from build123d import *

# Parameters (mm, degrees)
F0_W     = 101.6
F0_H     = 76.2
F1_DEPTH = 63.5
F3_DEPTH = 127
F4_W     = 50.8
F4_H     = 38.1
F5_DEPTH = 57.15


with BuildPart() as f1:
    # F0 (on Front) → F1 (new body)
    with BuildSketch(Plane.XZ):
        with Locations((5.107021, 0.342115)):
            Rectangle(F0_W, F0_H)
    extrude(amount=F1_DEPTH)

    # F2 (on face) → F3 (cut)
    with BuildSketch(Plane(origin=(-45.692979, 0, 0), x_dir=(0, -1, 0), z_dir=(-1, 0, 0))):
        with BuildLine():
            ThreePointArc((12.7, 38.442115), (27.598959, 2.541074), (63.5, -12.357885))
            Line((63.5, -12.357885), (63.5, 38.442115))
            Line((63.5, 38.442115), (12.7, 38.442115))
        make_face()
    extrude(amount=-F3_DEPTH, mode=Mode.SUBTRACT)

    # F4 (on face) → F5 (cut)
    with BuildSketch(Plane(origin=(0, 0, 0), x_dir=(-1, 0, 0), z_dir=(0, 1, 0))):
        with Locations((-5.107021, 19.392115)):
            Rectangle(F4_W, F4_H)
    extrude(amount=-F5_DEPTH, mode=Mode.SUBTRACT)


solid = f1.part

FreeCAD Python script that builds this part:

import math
import FreeCAD as App
import Part
import Sketcher

V = App.Vector
Q = App.Units.Quantity


def add_polygon(sketch, points):
    """Adds a closed chain of lines whose ends are joined by coincident constraints."""
    first, n = sketch.GeometryCount, len(points)
    for a, b in zip(points, points[1:] + points[:1]):
        sketch.addGeometry(Part.LineSegment(App.Vector(*a, 0), App.Vector(*b, 0)), False)
    for i in range(n):
        sketch.addConstraint(Sketcher.Constraint("Coincident", first + i, 2, first + (i + 1) % n, 1))

doc = App.newDocument("Part")
body = doc.addObject("PartDesign::Body", "Body")

# Sketch on XZ plane
sketch1 = body.newObject("Sketcher::SketchObject", "Sketch")
sketch1.AttachmentSupport = (doc.getObject("XZ_Plane"), [""])
sketch1.MapMode = "FlatFace"
add_polygon(sketch1, [(-46, 38), (-46, -38), (56, -38), (56, 38)])  # lines 0-3
sketch1.addConstraint([
    Sketcher.Constraint("Vertical", 0),
    Sketcher.Constraint("Horizontal", 1),
    Sketcher.Constraint("Vertical", 2),
    Sketcher.Constraint("Horizontal", 3),
    Sketcher.Constraint("DistanceX", 1, 1, 1, 2, Q("4 in")),
    Sketcher.Constraint("DistanceY", 0, 2, 0, 1, Q("3 in")),
    Sketcher.Constraint("DistanceX", 0, 2, -1, 1, 45.692979),
    Sketcher.Constraint("DistanceY", 0, 2, -1, 1, 37.757885),
])
pad1 = body.newObject("PartDesign::Pad", "Pad")
pad1.Profile = sketch1
pad1.Length = Q("2.5 in")

# Sketch on YZ plane
sketch2 = body.newObject("Sketcher::SketchObject", "Sketch001")
sketch2.AttachmentSupport = (doc.getObject("YZ_Plane"), [""])
sketch2.MapMode = "FlatFace"
sketch2.AttachmentOffset = App.Placement(V(0, 0, -45.692979), App.Rotation())
sketch2.addGeometry([
    Part.ArcOfCircle(Part.Circle(V(-64, 39, 0), V(0, 0, 1), 51), math.radians(-90), math.radians(0)),
    Part.LineSegment(V(-64, -12, 0), V(-64, 38, 0)),
    Part.LineSegment(V(-64, 38, 0), V(-13, 38, 0)),
], False)
sketch2.addConstraint([
    Sketcher.Constraint("Coincident", 0, 1, 1, 1),
    Sketcher.Constraint("Coincident", 1, 2, 2, 1),
    Sketcher.Constraint("Coincident", 2, 2, 0, 2),
    Sketcher.Constraint("Vertical", 1),
    Sketcher.Constraint("Horizontal", 2),
    Sketcher.Constraint("Equal", 2, 1),
    Sketcher.Constraint("DistanceX", 2, 1, 2, 2, Q("2 in")),
    Sketcher.Constraint("DistanceX", 0, 1, -1, 1, Q("2.5 in")),
    Sketcher.Constraint("Radius", 0, 50.868385),
    Sketcher.Constraint("DistanceY", -1, 1, 0, 3, 38.510454),
])
pocket1 = body.newObject("PartDesign::Pocket", "Pocket")
pocket1.Profile = sketch2
pocket1.Length = Q("5 in")
pocket1.Reversed = True

# Sketch on XZ plane
sketch3 = body.newObject("Sketcher::SketchObject", "Sketch002")
sketch3.AttachmentSupport = (doc.getObject("XZ_Plane"), [""])
sketch3.MapMode = "FlatFace"
add_polygon(sketch3, [(31, 38), (31, 0), (-20, 0), (-20, 38)])  # lines 0-3
sketch3.addConstraint([
    Sketcher.Constraint("Vertical", 0),
    Sketcher.Constraint("Horizontal", 1),
    Sketcher.Constraint("Vertical", 2),
    Sketcher.Constraint("Horizontal", 3),
    Sketcher.Constraint("DistanceX", 1, 2, 1, 1, Q("2 in")),
    Sketcher.Constraint("DistanceY", 0, 2, 0, 1, Q("1.5 in")),
    Sketcher.Constraint("DistanceX", -1, 1, 0, 2, 30.507021),
    Sketcher.Constraint("DistanceY", -1, 1, 0, 2, 0.342115),
])
pocket2 = body.newObject("PartDesign::Pocket", "Pocket001")
pocket2.Profile = sketch3
pocket2.Length = Q("2.25 in")
pocket2.Reversed = True

doc.recompute()
